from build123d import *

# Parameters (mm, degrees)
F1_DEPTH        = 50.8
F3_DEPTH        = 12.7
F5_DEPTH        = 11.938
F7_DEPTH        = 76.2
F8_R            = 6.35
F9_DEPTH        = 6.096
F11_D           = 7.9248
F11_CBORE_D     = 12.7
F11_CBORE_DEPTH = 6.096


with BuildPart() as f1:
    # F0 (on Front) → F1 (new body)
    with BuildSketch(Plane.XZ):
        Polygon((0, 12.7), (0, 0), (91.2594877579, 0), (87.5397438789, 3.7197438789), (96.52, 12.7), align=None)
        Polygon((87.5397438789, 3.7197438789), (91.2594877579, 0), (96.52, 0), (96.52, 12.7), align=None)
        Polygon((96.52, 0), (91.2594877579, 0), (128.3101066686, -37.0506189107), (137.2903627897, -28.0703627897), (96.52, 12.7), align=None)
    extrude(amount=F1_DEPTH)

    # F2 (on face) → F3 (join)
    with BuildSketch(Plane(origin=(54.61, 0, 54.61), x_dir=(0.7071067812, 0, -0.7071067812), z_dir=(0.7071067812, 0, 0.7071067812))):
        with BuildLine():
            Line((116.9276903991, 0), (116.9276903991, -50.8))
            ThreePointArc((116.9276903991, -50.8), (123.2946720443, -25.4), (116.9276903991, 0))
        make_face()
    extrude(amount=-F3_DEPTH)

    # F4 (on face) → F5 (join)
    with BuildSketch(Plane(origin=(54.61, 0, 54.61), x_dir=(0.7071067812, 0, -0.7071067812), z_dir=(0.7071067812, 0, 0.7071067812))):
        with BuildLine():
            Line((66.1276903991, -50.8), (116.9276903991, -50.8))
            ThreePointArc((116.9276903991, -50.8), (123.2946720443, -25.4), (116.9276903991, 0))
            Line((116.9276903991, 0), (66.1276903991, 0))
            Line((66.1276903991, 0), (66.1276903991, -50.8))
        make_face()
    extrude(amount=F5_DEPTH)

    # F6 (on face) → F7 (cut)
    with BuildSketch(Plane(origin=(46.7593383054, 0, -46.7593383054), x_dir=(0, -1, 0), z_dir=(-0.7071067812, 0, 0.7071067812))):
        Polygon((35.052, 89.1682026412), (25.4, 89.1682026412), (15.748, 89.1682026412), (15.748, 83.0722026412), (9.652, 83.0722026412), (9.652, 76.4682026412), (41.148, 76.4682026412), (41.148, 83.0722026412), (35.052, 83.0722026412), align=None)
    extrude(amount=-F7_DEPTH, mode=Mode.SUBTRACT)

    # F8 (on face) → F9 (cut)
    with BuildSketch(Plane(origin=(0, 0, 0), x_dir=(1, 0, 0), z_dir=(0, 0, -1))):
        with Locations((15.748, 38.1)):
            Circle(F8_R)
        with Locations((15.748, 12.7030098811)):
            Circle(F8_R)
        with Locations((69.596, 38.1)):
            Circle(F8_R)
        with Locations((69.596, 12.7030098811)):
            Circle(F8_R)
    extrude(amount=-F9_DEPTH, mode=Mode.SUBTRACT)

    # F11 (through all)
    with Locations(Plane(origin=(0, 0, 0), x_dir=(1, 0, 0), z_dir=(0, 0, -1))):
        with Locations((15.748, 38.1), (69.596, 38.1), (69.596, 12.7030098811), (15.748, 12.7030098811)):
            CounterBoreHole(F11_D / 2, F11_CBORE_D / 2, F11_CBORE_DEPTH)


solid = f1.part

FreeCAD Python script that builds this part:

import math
import FreeCAD as App
import Part
import Sketcher
from FreeCAD import Vector
Q = App.Units.Quantity


def add_polygon(sketch, points):
    """Adds a closed chain of lines whose ends are joined by coincident constraints."""
    first, n = sketch.GeometryCount, len(points)
    for a, b in zip(points, points[1:] + points[:1]):
        sketch.addGeometry(Part.LineSegment(App.Vector(*a, 0), App.Vector(*b, 0)), False)
    for i in range(n):
        sketch.addConstraint(Sketcher.Constraint("Coincident", first + i, 2, first + (i + 1) % n, 1))

doc = App.newDocument("Part")
body = doc.addObject("PartDesign::Body", "Body")

sketch1 = body.newObject("Sketcher::SketchObject", "Sketch")
sketch1.AttachmentSupport = (doc.getObject("XZ_Plane"), [""])
sketch1.MapMode = "FlatFace"
add_polygon(sketch1, [(0, 12.7), (0, 0), (91.259488, 0), (128.310107, -37.050619), (137.290363, -28.070363), (96.52, 12.7)])
sketch1.addConstraint([
    Sketcher.Constraint("Vertical", 0),
    Sketcher.Constraint("Horizontal", 1),
    Sketcher.Constraint("Horizontal", 5),
    Sketcher.Constraint("Coincident", 0, 2, -1, 1),
    Sketcher.Constraint("Perpendicular", 2, 3),
    Sketcher.Constraint("Perpendicular", 3, 4),
    Sketcher.Constraint("DistanceX", 5, 2, 5, 1, Q("3.8 in")),
    Sketcher.Constraint("DistanceY", 0, 2, 0, 1, Q("0.5 in")),
    Sketcher.Constraint("Angle", 2, Q("-45 deg")),
    Sketcher.Constraint("Distance", 3, Q("0.5 in")),
    Sketcher.Constraint("Distance", 4, Q("2.27 in")),
])
pad1 = body.newObject("PartDesign::Pad", "Pad")
pad1.Profile = sketch1
pad1.Length = Q("2 in")

sketch2 = body.newObject("Sketcher::SketchObject", "Sketch001")
sketch2.Placement = App.Placement(Vector(54.61, 0, 54.61), App.Rotation(Vector(0.707106781, 0, -0.707106781), Vector(0, 0.999999999, 0), Vector(0.707106781, 0, 0.707106781), "ZXY"))
sketch2.addGeometry([
    Part.LineSegment(Vector(116.92769, 0, 0), Vector(116.92769, -50.8, 0)),
    Part.ArcOfCircle(Part.Circle(Vector(69.446672, -25.4, 0), Vector(0, 0, 1), 53.848), math.radians(-28.144581), math.radians(28.144581)),
], False)
sketch2.addConstraint([
    Sketcher.Constraint("Coincident", 0, 1, 1, 2),
    Sketcher.Constraint("Coincident", 1, 1, 0, 2),
    Sketcher.Constraint("Vertical", 0),
    Sketcher.Constraint("PointOnObject", 0, 1, -1),
    Sketcher.Constraint("DistanceY", 0, 2, 0, 1, Q("2 in")),
    Sketcher.Constraint("Radius", 1, Q("2.12 in")),
    Sketcher.Constraint("DistanceX", -1, 1, 0, 1, 116.92769),
])
pad2 = body.newObject("PartDesign::Pad", "Pad001")
pad2.Profile = sketch2
pad2.Length = Q("0.5 in")
pad2.Reversed = True

sketch3 = body.newObject("Sketcher::SketchObject", "Sketch002")
sketch3.Placement = App.Placement(Vector(54.61, 0, 54.61), App.Rotation(Vector(0.707106781, 0, -0.707106781), Vector(0, 0.999999999, 0), Vector(0.707106781, 0, 0.707106781), "ZXY"))
sketch3.addGeometry([
    Part.LineSegment(Vector(66.12769, -50.8, 0), Vector(116.92769, -50.8, 0)),
    Part.ArcOfCircle(Part.Circle(Vector(69.446672, -25.4, 0), Vector(0, 0, 1), 53.848), math.radians(-28.144581), math.radians(28.144581)),
    Part.LineSegment(Vector(116.92769, 0, 0), Vector(66.12769, 0, 0)),
    Part.LineSegment(Vector(66.12769, 0, 0), Vector(66.12769, -50.8, 0)),
], False)
sketch3.addConstraint([
    Sketcher.Constraint("Coincident", 0, 2, 1, 1),
    Sketcher.Constraint("Coincident", 1, 2, 2, 1),
    Sketcher.Constraint("Coincident", 2, 2, 3, 1),
    Sketcher.Constraint("Coincident", 3, 2, 0, 1),
    Sketcher.Constraint("Horizontal", 0),
    Sketcher.Constraint("Horizontal", 2),
    Sketcher.Constraint("Vertical", 3),
    Sketcher.Constraint("PointOnObject", 1, 2, -1),
    Sketcher.Constraint("Vertical", 0, 2, 1, 2),
    Sketcher.Constraint("Equal", 2, 3),
    Sketcher.Constraint("DistanceX", 0, 1, 0, 2, Q("2 in")),
    Sketcher.Constraint("Radius", 1, Q("2.12 in")),
    Sketcher.Constraint("DistanceX", -1, 1, 0, 2, 116.92769),
])
pad3 = body.newObject("PartDesign::Pad", "Pad002")
pad3.Profile = sketch3
pad3.Length = Q("0.47 in")

sketch4 = body.newObject("Sketcher::SketchObject", "Sketch003")
sketch4.Placement = App.Placement(Vector(46.759338, 0, -46.759338), App.Rotation(Vector(0, -1, 0), Vector(0.707106781, 0, 0.707106781), Vector(-0.707106781, 0, 0.707106781), "ZXY"))
add_polygon(sketch4, [(35.052, 89.168203), (15.748, 89.168203), (15.748, 83.072203), (9.652, 83.072203), (9.652, 76.468203), (41.148, 76.468203), (41.148, 83.072203), (35.052, 83.072203)])
sketch4.addConstraint([
    Sketcher.Constraint("Horizontal", 0),
    Sketcher.Constraint("Vertical", 1),
    Sketcher.Constraint("Horizontal", 2),
    Sketcher.Constraint("Vertical", 3),
    Sketcher.Constraint("Horizontal", 4),
    Sketcher.Constraint("Vertical", 5),
    Sketcher.Constraint("Horizontal", 6),
    Sketcher.Constraint("Vertical", 7),
    Sketcher.Constraint("Horizontal", 2, 2, 5, 2),
    Sketcher.Constraint("Equal", 2, 6),
    Sketcher.Constraint("Equal", 6, 1),
    Sketcher.Constraint("DistanceX", 1, 2, 4, 2, Q("1 in")),
    Sketcher.Constraint("DistanceX", 0, 2, 0, 1, Q("0.76 in")),
    Sketcher.Constraint("DistanceY", 3, 2, 3, 1, Q("0.26 in")),
    Sketcher.Constraint("DistanceX", -1, 1, 0, 2, Q("0.62 in")),
    Sketcher.Constraint("DistanceY", -1, 1, 0, 2, 89.168203),
])
pocket1 = body.newObject("PartDesign::Pocket", "Pocket")
pocket1.Profile = sketch4
pocket1.Length = Q("3 in")

sketch5 = body.newObject("Sketcher::SketchObject", "Sketch004")
sketch5.AttachmentSupport = (doc.getObject("XY_Plane"), [""])
sketch5.MapMode = "FlatFace"
sketch5.addGeometry([
    Part.Circle(Vector(15.748, -38.1, 0), Vector(0, 0, 1), 6.35),
    Part.Circle(Vector(15.748, -12.70301, 0), Vector(0, 0, 1), 6.35),
    Part.Circle(Vector(69.596, -38.1, 0), Vector(0, 0, 1), 6.35),
    Part.Circle(Vector(69.596, -12.70301, 0), Vector(0, 0, 1), 6.35),
], False)
sketch5.addConstraint([
    Sketcher.Constraint("Equal", 0, 1),
    Sketcher.Constraint("Equal", 1, 2),
    Sketcher.Constraint("Equal", 2, 3),
    Sketcher.Constraint("Horizontal", 0, 3, 2, 3),
    Sketcher.Constraint("Horizontal", 1, 3, 3, 3),
    Sketcher.Constraint("Vertical", 0, 3, 1, 3),
    Sketcher.Constraint("Vertical", 2, 3, 3, 3),
    Sketcher.Constraint("Diameter", 0, Q("0.5 in")),
    Sketcher.Constraint("DistanceY", 0, 3, -1, 1, Q("1.5 in")),
    Sketcher.Constraint("DistanceX", -1, 1, 0, 3, Q("0.62 in")),
    Sketcher.Constraint("DistanceX", -1, 1, 2, 3, Q("2.74 in")),
    Sketcher.Constraint("DistanceY", 1, 3, -1, 1, 12.70301),
])
pocket2 = body.newObject("PartDesign::Pocket", "Pocket001")
pocket2.Profile = sketch5
pocket2.Length = Q("0.24 in")
pocket2.Reversed = True

sketch6 = body.newObject("Sketcher::SketchObject", "Sketch005")
sketch6.AttachmentSupport = (doc.getObject("XY_Plane"), [""])
sketch6.MapMode = "FlatFace"
sketch6.addGeometry([
    Part.Circle(Vector(15.748, -38.1, 0), Vector(0, 0, 1), 3.9624),
    Part.Circle(Vector(69.596, -38.1, 0), Vector(0, 0, 1), 3.9624),
    Part.Circle(Vector(69.596, -12.70301, 0), Vector(0, 0, 1), 3.9624),
    Part.Circle(Vector(15.748, -12.70301, 0), Vector(0, 0, 1), 3.9624),
], False)
sketch6.addConstraint([
    Sketcher.Constraint("Equal", 0, 1),
    Sketcher.Constraint("Equal", 1, 2),
    Sketcher.Constraint("Equal", 2, 3),
    Sketcher.Constraint("Horizontal", 0, 3, 1, 3),
    Sketcher.Constraint("Horizontal", 2, 3, 3, 3),
    Sketcher.Constraint("Vertical", 1, 3, 2, 3),
    Sketcher.Constraint("Vertical", 0, 3, 3, 3),
    Sketcher.Constraint("Diameter", 0, Q("0.312 in")),
    Sketcher.Constraint("DistanceY", 0, 3, -1, 1, Q("1.5 in")),
    Sketcher.Constraint("DistanceX", -1, 1, 0, 3, Q("0.62 in")),
    Sketcher.Constraint("DistanceX", -1, 1, 1, 3, Q("2.74 in")),
    Sketcher.Constraint("DistanceY", 2, 3, -1, 1, 12.70301),
])
doc.recompute()
hole = body.newObject("PartDesign::Hole", "Hole")
hole.Profile = sketch6
hole.ThreadType = "None"
hole.Diameter = Q("0.312 in")
hole.DepthType = "ThroughAll"
hole.HoleCutType = "Counterbore"
hole.HoleCutDiameter = Q("0.5 in")
hole.HoleCutDepth = Q("0.24 in")
hole.Reversed = True

doc.recompute()
